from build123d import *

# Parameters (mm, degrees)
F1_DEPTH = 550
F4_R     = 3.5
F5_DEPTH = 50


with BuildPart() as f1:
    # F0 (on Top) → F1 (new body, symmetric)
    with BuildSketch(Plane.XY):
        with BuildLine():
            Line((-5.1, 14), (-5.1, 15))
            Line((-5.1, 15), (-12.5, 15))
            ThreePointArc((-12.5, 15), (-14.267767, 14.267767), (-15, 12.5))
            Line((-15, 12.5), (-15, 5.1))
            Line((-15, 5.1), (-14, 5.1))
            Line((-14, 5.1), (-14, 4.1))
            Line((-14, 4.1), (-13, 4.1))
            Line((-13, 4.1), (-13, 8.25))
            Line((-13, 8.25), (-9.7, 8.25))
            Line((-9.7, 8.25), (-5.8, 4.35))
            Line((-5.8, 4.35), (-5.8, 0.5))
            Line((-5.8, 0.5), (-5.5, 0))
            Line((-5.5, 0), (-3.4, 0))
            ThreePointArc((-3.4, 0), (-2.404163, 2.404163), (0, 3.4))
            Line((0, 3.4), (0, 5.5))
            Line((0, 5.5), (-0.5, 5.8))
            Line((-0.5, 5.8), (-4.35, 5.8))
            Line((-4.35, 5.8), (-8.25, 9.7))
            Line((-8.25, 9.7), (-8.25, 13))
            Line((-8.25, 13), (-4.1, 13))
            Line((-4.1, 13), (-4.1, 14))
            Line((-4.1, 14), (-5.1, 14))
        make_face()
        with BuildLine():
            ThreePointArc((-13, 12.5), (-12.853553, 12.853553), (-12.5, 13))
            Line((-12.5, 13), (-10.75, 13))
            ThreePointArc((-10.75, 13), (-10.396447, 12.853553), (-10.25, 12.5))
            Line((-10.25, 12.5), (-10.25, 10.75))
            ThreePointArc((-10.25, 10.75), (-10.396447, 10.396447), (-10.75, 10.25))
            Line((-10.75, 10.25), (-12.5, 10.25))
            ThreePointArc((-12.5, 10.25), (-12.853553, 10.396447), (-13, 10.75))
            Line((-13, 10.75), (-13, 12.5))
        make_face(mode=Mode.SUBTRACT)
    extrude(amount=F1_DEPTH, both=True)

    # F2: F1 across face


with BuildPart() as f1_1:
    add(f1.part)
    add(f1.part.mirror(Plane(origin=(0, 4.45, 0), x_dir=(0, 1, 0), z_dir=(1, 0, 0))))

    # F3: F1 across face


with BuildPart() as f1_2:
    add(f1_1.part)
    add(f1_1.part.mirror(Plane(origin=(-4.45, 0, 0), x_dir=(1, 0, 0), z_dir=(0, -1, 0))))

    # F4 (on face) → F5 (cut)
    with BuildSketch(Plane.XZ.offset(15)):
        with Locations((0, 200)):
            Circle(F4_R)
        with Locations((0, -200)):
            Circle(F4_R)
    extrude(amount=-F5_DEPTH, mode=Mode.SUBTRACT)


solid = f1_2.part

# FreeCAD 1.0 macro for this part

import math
import FreeCAD as App
import Part
import Sketcher

V = App.Vector
Q = App.Units.Quantity

doc = App.newDocument("Part")
params = doc.addObject("Spreadsheet::Sheet", "Params")
for row, (alias, value) in enumerate([
    ("sketch1_radius", "2.5 mm"),
    ("sketch1_radius2", "3.4 mm"),
    ("sketch1_radius3", "0.500001 mm"),
    ("sketch1_width", "7.4 mm"),
    ("sketch1_width2", "3.3 mm"),
    ("pad1_length", "1100 mm"),
    ("sketch2_diameter", "7 mm"),
    ("pocket1_length", "50 mm"),
], start=1):
    params.set(f"A{row}", alias)
    params.set(f"B{row}", "=" + value)
    params.setAlias(f"B{row}", alias)

body = doc.addObject("PartDesign::Body", "Body")

# Sketch on XY plane
sketch1 = body.newObject("Sketcher::SketchObject", "Sketch")
sketch1.AttachmentSupport = (doc.getObject("XY_Plane"), [""])
sketch1.MapMode = "FlatFace"
sketch1.addGeometry([
    Part.LineSegment(V(-5.1, 14, 0), V(-5.1, 15, 0)),  # 0
    Part.LineSegment(V(-5.1, 15, 0), V(-12.5, 15, 0)),  # 1
    Part.ArcOfCircle(Part.Circle(V(-12.5, 12.5, 0), V(0, 0, 1), 2.5), math.radians(90), math.radians(180)),  # 2
    Part.LineSegment(V(-15, 12.5, 0), V(-15, 5.1, 0)),  # 3
    Part.LineSegment(V(-15, 5.1, 0), V(-14, 5.1, 0)),  # 4
    Part.LineSegment(V(-14, 5.1, 0), V(-14, 4.1, 0)),  # 5
    Part.LineSegment(V(-14, 4.1, 0), V(-13, 4.1, 0)),  # 6
    Part.LineSegment(V(-13, 4.1, 0), V(-13, 8.2, 0)),  # 7
    Part.LineSegment(V(-13, 8.2, 0), V(-9.7, 8.2, 0)),  # 8
    Part.LineSegment(V(-9.7, 8.2, 0), V(-5.8, 4.3, 0)),  # 9
    Part.LineSegment(V(-5.8, 4.3, 0), V(-5.8, 0.5, 0)),  # 10
    Part.LineSegment(V(-5.8, 0.5, 0), V(-5.5, 0, 0)),  # 11
    Part.LineSegment(V(-5.5, 0, 0), V(-3.4, 0, 0)),  # 12
    Part.ArcOfCircle(Part.Circle(V(0, 0, 0), V(0, 0, 1), 3.4), math.radians(90), math.radians(180)),  # 13
    Part.LineSegment(V(0, 3.4, 0), V(0, 5.5, 0)),  # 14
    Part.LineSegment(V(0, 5.5, 0), V(-0.5, 5.8, 0)),  # 15
    Part.LineSegment(V(-0.5, 5.8, 0), V(-4.3, 5.8, 0)),  # 16
    Part.LineSegment(V(-4.3, 5.8, 0), V(-8.2, 9.7, 0)),  # 17
    Part.LineSegment(V(-8.2, 9.7, 0), V(-8.2, 13, 0)),  # 18
    Part.LineSegment(V(-8.2, 13, 0), V(-4.1, 13, 0)),  # 19
    Part.LineSegment(V(-4.1, 13, 0), V(-4.1, 14, 0)),  # 20
    Part.LineSegment(V(-4.1, 14, 0), V(-5.1, 14, 0)),  # 21
    Part.LineSegment(V(-13, 10.8, 0), V(-13, 12.5, 0)),  # 22
    Part.ArcOfCircle(Part.Circle(V(-12.5, 12.5, 0), V(0, 0, 1), 0.5), math.radians(90), math.radians(180)),  # 23
    Part.LineSegment(V(-12.5, 13, 0), V(-10.8, 13, 0)),  # 24
    Part.ArcOfCircle(Part.Circle(V(-10.8, 12.5, 0), V(0, 0, 1), 0.5), math.radians(0), math.radians(90)),  # 25
    Part.LineSegment(V(-10.2, 12.5, 0), V(-10.2, 10.8, 0)),  # 26
    Part.ArcOfCircle(Part.Circle(V(-10.8, 10.8, 0), V(0, 0, 1), 0.5), math.radians(-90), math.radians(0)),  # 27
    Part.LineSegment(V(-10.8, 10.2, 0), V(-12.5, 10.2, 0)),  # 28
    Part.ArcOfCircle(Part.Circle(V(-12.5, 10.8, 0), V(0, 0, 1), 0.5), math.radians(-180), math.radians(-90)),  # 29
], False)
sketch1.addConstraint([
    Sketcher.Constraint("Coincident", 0, 2, 1, 1),
    Sketcher.Constraint("Tangent", 1, 2, 2, 1),
    Sketcher.Constraint("Tangent", 2, 2, 3, 1),
    Sketcher.Constraint("Coincident", 3, 2, 4, 1),
    Sketcher.Constraint("Coincident", 4, 2, 5, 1),
    Sketcher.Constraint("Coincident", 5, 2, 6, 1),
    Sketcher.Constraint("Coincident", 6, 2, 7, 1),
    Sketcher.Constraint("Coincident", 7, 2, 8, 1),
    Sketcher.Constraint("Coincident", 8, 2, 9, 1),
    Sketcher.Constraint("Coincident", 9, 2, 10, 1),
    Sketcher.Constraint("Coincident", 10, 2, 11, 1),
    Sketcher.Constraint("Coincident", 11, 2, 12, 1),
    Sketcher.Constraint("Coincident", 12, 2, 13, 2),
    Sketcher.Constraint("Coincident", 13, 1, 14, 1),
    Sketcher.Constraint("Coincident", 14, 2, 15, 1),
    Sketcher.Constraint("Coincident", 15, 2, 16, 1),
    Sketcher.Constraint("Coincident", 16, 2, 17, 1),
    Sketcher.Constraint("Coincident", 17, 2, 18, 1),
    Sketcher.Constraint("Coincident", 18, 2, 19, 1),
    Sketcher.Constraint("Coincident", 19, 2, 20, 1),
    Sketcher.Constraint("Coincident", 20, 2, 21, 1),
    Sketcher.Constraint("Coincident", 21, 2, 0, 1),
    Sketcher.Constraint("Coincident", 22, 2, 23, 2),
    Sketcher.Constraint("Coincident", 23, 1, 24, 1),
    Sketcher.Constraint("Coincident", 24, 2, 25, 2),
    Sketcher.Constraint("Coincident", 25, 1, 26, 1),
    Sketcher.Constraint("Coincident", 26, 2, 27, 2),
    Sketcher.Constraint("Coincident", 27, 1, 28, 1),
    Sketcher.Constraint("Coincident", 28, 2, 29, 2),
    Sketcher.Constraint("Coincident", 29, 1, 22, 1),
    Sketcher.Constraint("Vertical", 0),
    Sketcher.Constraint("Horizontal", 1),
    Sketcher.Constraint("Vertical", 3),
    Sketcher.Constraint("Horizontal", 4),
    Sketcher.Constraint("Vertical", 5),
    Sketcher.Constraint("Horizontal", 6),
    Sketcher.Constraint("Vertical", 7),
    Sketcher.Constraint("Horizontal", 8),
    Sketcher.Constraint("Vertical", 10),
    Sketcher.Constraint("Horizontal", 12),
    Sketcher.Constraint("Vertical", 14),
    Sketcher.Constraint("Horizontal", 16),
    Sketcher.Constraint("Vertical", 18),
    Sketcher.Constraint("Horizontal", 19),
    Sketcher.Constraint("Vertical", 20),
    Sketcher.Constraint("Horizontal", 21),
    Sketcher.Constraint("Vertical", 22),
    Sketcher.Constraint("Horizontal", 24),
    Sketcher.Constraint("Vertical", 26),
    Sketcher.Constraint("Horizontal", 28),
    Sketcher.Constraint("Coincident", 13, 3, -1, 1),
    Sketcher.Constraint("Coincident", 23, 3, 2, 3),
    Sketcher.Constraint("Equal", 23, 25),
    Sketcher.Constraint("Equal", 25, 27),
    Sketcher.Constraint("Equal", 27, 29),
    Sketcher.Constraint("PointOnObject", 11, 2, -1),
    Sketcher.Constraint("PointOnObject", 13, 1, -2),
    Sketcher.Constraint("Parallel", 9, 17),
    Sketcher.Constraint("Horizontal", 2, 2, 22, 2),
    Sketcher.Constraint("Horizontal", 19, 2, 23, 1),
    Sketcher.Constraint("Horizontal", 22, 2, 25, 1),
    Sketcher.Constraint("Horizontal", 29, 3, 26, 2),
    Sketcher.Constraint("Horizontal", 26, 2, 29, 1),
    Sketcher.Constraint("Vertical", 7, 2, 22, 2),
    Sketcher.Constraint("Vertical", 1, 2, 23, 1),
    Sketcher.Constraint("Vertical", 27, 3, 24, 2),
    Sketcher.Constraint("Vertical", 24, 2, 27, 1),
    Sketcher.Constraint("Vertical", 23, 1, 28, 2),
    Sketcher.Constraint("Equal", 4, 6),
    Sketcher.Constraint("Equal", 6, 21),
    Sketcher.Constraint("Equal", 21, 0),
    Sketcher.Constraint("Equal", 1, 3),
    Sketcher.Constraint("Equal", 0, 5),
    Sketcher.Constraint("Equal", 19, 7),
    Sketcher.Constraint("Equal", 16, 10),
    Sketcher.Constraint("Equal", 12, 14),
    Sketcher.Constraint("Equal", 8, 18),
    Sketcher.Constraint("Equal", 28, 22),
    Sketcher.Constraint("Equal", 11, 15),
    Sketcher.Constraint("Equal", 9, 17),
    Sketcher.Constraint("Radius", 2, Q("2.5 mm")),
    Sketcher.Constraint("Radius", 13, Q("3.4 mm")),
    Sketcher.Constraint("Radius", 23, Q("0.500001 mm")),
    Sketcher.Constraint("Angle", 9, Q("-45 deg")),
    Sketcher.Constraint("DistanceX", 1, 2, 1, 1, Q("7.4 mm")),
    Sketcher.Constraint("DistanceX", 8, 1, 8, 2, Q("3.3 mm")),
    Sketcher.Constraint("DistanceX", 12, 1, 12, 2, Q("2.1 mm")),
    Sketcher.Constraint("DistanceY", -1, 1, 0, 2, Q("15 mm")),
    Sketcher.Constraint("DistanceY", 10, 2, 14, 2, Q("5 mm")),
    Sketcher.Constraint("DistanceX", 25, 1, 18, 2, Q("2 mm")),
    Sketcher.Constraint("DistanceX", 16, 2, 16, 1, Q("3.85 mm")),
    Sketcher.Constraint("DistanceX", 19, 1, 19, 2, Q("4.15 mm")),
])
sketch1.setExpression("Constraints[80]", "Params.sketch1_radius")
sketch1.setExpression("Constraints[81]", "Params.sketch1_radius2")
sketch1.setExpression("Constraints[82]", "Params.sketch1_radius3")
sketch1.setExpression("Constraints[84]", "Params.sketch1_width")
sketch1.setExpression("Constraints[85]", "Params.sketch1_width2")
pad1 = body.newObject("PartDesign::Pad", "Pad")
pad1.Profile = sketch1
pad1.setExpression("Length", "Params.pad1_length")
pad1.Midplane = True
body2 = doc.addObject("PartDesign::Body", "Body001")
doc.recompute()

body2.BaseFeature = body
doc.recompute()

mirroring = doc.addObject("Part::Mirroring", "Mirroring")
mirroring.Source = body
mirroring.Base = V(0, 4.45, 0)
mirroring.Normal = V(1, 0, 0)
body3 = doc.addObject("PartDesign::Body", "Body002")
body3.BaseFeature = mirroring
boolean = body2.newObject("PartDesign::Boolean", "Boolean")
boolean.Type = "Fuse"
boolean.addObjects([body3])
doc.recompute()
body4 = doc.addObject("PartDesign::Body", "Body003")
doc.recompute()

body4.BaseFeature = body2
doc.recompute()

mirroring2 = doc.addObject("Part::Mirroring", "Mirroring001")
mirroring2.Source = body2
mirroring2.Base = V(-4.45, 0, 0)
mirroring2.Normal = V(0, -1, 0)
body5 = doc.addObject("PartDesign::Body", "Body004")
body5.BaseFeature = mirroring2
boolean2 = body4.newObject("PartDesign::Boolean", "Boolean001")
boolean2.Type = "Fuse"
boolean2.addObjects([body5])
doc.recompute()

# Sketch on XZ plane
sketch2 = body4.newObject("Sketcher::SketchObject", "Sketch001")
sketch2.AttachmentSupport = (doc.getObject("XZ_Plane003"), [""])
sketch2.MapMode = "FlatFace"
sketch2.AttachmentOffset = App.Placement(V(0, 0, 15), App.Rotation())
sketch2.addGeometry([
    Part.Circle(V(0, 200, 0), V(0, 0, 1), 3.5),
    Part.Circle(V(0, -200, 0), V(0, 0, 1), 3.5),
], False)
sketch2.addConstraint([
    Sketcher.Constraint("Equal", 0, 1),
    Sketcher.Constraint("Symmetric", 0, 3, 1, 3, -1, 1),
    Sketcher.Constraint("PointOnObject", 0, 3, -2),
    Sketcher.Constraint("Diameter", 0, Q("7 mm")),
    Sketcher.Constraint("DistanceY", -1, 1, 0, 3, Q("200 mm")),
])
sketch2.setExpression("Constraints[3]", "Params.sketch2_diameter")
pocket1 = body4.newObject("PartDesign::Pocket", "Pocket")
pocket1.Profile = sketch2
pocket1.setExpression("Length", "Params.pocket1_length")
mirroring.Visibility = False
mirroring2.Visibility = False

doc.recompute()
